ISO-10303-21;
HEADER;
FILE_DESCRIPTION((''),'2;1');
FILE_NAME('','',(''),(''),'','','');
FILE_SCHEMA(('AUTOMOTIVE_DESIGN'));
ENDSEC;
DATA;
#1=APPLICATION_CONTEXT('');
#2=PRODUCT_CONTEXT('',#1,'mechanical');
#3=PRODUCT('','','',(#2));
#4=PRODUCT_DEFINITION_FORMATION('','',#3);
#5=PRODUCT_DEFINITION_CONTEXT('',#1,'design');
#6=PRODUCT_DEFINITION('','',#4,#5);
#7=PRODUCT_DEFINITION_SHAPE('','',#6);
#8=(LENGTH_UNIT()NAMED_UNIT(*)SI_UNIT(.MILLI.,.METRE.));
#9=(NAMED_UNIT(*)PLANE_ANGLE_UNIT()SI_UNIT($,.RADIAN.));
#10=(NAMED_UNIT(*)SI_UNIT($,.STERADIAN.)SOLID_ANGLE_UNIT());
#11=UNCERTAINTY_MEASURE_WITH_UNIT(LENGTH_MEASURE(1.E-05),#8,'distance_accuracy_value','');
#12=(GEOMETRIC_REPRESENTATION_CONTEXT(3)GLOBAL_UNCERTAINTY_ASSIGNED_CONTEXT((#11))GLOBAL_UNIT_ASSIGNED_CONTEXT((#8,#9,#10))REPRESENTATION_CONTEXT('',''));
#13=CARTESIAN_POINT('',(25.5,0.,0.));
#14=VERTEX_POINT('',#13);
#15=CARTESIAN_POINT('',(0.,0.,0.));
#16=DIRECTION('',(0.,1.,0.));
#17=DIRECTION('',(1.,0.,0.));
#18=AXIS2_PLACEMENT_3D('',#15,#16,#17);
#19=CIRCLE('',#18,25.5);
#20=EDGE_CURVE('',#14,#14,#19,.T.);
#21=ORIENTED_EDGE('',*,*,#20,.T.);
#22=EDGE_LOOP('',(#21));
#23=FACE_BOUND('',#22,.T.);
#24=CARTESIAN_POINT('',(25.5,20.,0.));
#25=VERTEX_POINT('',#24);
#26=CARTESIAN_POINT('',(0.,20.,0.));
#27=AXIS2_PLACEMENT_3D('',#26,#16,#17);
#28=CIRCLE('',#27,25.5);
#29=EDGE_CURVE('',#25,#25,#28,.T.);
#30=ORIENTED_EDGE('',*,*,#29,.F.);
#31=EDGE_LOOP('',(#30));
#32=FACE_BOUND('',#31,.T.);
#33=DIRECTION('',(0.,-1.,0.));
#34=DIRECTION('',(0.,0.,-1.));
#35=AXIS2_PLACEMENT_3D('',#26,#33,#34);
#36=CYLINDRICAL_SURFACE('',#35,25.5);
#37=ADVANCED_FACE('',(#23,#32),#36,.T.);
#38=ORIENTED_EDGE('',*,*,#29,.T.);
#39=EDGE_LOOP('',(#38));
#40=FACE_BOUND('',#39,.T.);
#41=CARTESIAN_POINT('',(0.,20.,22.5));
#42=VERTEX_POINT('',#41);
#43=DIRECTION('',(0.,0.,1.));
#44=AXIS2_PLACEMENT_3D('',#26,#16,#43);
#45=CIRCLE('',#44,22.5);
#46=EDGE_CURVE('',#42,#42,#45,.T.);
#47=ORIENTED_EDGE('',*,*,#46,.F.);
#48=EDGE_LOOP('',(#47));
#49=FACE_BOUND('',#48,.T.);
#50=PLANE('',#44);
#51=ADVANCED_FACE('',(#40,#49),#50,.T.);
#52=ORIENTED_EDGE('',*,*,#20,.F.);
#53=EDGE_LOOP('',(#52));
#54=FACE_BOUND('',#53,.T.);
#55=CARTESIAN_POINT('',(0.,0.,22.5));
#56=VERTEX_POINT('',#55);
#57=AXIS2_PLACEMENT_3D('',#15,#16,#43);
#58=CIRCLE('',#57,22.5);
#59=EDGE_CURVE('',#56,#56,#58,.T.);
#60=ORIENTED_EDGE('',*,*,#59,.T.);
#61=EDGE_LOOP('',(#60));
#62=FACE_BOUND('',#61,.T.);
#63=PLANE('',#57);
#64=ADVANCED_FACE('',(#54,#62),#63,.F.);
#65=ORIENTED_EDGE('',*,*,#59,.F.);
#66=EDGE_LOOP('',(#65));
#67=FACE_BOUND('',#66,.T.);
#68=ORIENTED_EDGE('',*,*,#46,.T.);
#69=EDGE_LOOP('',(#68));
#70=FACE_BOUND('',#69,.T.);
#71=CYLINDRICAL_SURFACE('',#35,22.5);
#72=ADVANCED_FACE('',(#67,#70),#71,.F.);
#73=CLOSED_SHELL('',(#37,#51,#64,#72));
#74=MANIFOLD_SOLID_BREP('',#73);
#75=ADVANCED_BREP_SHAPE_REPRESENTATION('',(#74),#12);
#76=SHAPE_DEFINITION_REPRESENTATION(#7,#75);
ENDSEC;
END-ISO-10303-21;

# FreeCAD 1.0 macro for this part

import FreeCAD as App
import Part
import Sketcher

V = App.Vector

doc = App.newDocument("Part")
body = doc.addObject("PartDesign::Body", "Body")

# Sketch on XZ plane
sketch1 = body.newObject("Sketcher::SketchObject", "Sketch")
sketch1.AttachmentSupport = (doc.getObject("XZ_Plane"), [""])
sketch1.MapMode = "FlatFace"
sketch1.addGeometry(Part.Circle(V(0, 0, 0), V(0, 0, 1), 25.5), False)
sketch1.addGeometry(Part.Circle(V(0, 0, 0), V(0, 0, 1), 22.5), False)
sketch1.addConstraint(Sketcher.Constraint("Coincident", 0, 3, -1, 1))
sketch1.addConstraint(Sketcher.Constraint("Coincident", 1, 3, -1, 1))
sketch1.addConstraint(Sketcher.Constraint("Diameter", 0, 51.0))
sketch1.addConstraint(Sketcher.Constraint("Diameter", 1, 45.0))
pad1 = body.newObject("PartDesign::Pad", "Pad")
pad1.Profile = sketch1
pad1.Length = 20
pad1.Reversed = True

doc.recompute()
